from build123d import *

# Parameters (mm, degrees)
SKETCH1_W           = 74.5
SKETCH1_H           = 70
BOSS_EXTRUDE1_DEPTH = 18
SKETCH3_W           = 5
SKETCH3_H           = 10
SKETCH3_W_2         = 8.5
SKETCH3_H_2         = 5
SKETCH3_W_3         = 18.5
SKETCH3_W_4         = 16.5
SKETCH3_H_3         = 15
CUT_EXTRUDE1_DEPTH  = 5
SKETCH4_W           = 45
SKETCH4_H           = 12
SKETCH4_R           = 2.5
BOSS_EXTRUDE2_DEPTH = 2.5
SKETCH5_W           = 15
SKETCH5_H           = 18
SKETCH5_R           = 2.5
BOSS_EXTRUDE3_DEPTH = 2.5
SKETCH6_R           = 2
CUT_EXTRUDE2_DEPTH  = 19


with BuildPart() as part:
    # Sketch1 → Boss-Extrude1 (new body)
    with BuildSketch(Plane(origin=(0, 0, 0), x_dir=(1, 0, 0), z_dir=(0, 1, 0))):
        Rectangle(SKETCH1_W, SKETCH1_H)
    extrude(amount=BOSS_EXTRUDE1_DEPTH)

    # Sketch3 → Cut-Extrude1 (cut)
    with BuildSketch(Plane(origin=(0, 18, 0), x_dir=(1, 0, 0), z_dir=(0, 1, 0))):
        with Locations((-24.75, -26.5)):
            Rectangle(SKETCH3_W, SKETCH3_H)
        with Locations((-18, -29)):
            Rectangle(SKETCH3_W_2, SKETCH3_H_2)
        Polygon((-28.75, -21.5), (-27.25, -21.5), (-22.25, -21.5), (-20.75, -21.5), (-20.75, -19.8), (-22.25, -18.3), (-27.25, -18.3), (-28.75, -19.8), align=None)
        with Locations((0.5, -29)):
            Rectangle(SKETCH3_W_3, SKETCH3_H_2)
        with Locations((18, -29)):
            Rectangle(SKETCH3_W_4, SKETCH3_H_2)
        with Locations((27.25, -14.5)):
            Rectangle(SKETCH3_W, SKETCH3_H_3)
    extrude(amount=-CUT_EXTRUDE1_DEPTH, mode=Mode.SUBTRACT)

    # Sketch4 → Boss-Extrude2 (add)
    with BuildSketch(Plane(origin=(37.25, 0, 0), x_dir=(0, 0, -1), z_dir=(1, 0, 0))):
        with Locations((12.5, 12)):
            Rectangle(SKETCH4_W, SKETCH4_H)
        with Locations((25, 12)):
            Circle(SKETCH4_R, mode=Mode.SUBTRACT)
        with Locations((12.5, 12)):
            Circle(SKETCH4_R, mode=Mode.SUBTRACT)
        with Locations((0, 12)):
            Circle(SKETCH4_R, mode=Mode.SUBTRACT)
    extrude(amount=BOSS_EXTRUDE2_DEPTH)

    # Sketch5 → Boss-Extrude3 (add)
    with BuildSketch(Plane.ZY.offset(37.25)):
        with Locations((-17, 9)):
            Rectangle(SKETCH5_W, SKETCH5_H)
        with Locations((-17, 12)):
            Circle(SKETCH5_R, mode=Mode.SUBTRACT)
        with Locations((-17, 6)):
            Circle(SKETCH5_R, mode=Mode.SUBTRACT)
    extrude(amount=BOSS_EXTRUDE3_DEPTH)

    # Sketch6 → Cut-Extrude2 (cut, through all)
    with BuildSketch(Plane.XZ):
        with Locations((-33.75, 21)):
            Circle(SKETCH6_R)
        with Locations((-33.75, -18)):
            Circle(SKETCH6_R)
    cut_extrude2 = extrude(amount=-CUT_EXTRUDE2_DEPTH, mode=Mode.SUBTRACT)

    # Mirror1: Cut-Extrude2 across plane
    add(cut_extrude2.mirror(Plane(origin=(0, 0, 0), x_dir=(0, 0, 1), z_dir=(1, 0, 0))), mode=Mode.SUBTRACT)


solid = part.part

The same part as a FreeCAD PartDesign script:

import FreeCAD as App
import Part
import Sketcher

V = App.Vector
Q = App.Units.Quantity

doc = App.newDocument("Part")
params = doc.addObject("Spreadsheet::Sheet", "Params")
for row, (alias, value) in enumerate([
    ("sketch1_height", "70 mm"),
    ("sketch1_width", "74.5 mm"),
    ("pad1_length", "18 mm"),
    ("sketch2_width", "5 mm"),
    ("sketch2_width2", "35 mm"),
    ("sketch2_height", "15 mm"),
    ("sketch2_width3", "13.5 mm"),
    ("sketch2_width4", "1.5 mm"),
    ("pocket1_length", "5 mm"),
    ("sketch3_diameter", "5 mm"),
    ("sketch3_width", "12 mm"),
    ("sketch3_height", "45 mm"),
    ("pad2_length", "2.5 mm"),
    ("sketch4_diameter", "5 mm"),
    ("sketch4_width", "18 mm"),
    ("sketch4_height", "15 mm"),
    ("pad3_length", "2.5 mm"),
    ("sketch5_diameter", "4 mm"),
], start=1):
    params.set(f"A{row}", alias)
    params.set(f"B{row}", "=" + value)
    params.setAlias(f"B{row}", alias)

body = doc.addObject("PartDesign::Body", "Body")

# Sketch on XZ plane
sketch1 = doc.addObject("Sketcher::SketchObject", "Sketch")
body.addObject(sketch1)
sketch1.AttachmentSupport = (doc.XZ_Plane, [""])
sketch1.MapMode = "FlatFace"
sketch1.addGeometry(Part.LineSegment(V(-37, -35, 0), V(-37, 35, 0)), False)
sketch1.addGeometry(Part.LineSegment(V(-37, 35, 0), V(37, 35, 0)), False)
sketch1.addGeometry(Part.LineSegment(V(37, 35, 0), V(37, -35, 0)), False)
sketch1.addGeometry(Part.LineSegment(V(37, -35, 0), V(-37, -35, 0)), False)
sketch1.addConstraint(Sketcher.Constraint("Coincident", 0, 2, 1, 1))
sketch1.addConstraint(Sketcher.Constraint("Coincident", 1, 2, 2, 1))
sketch1.addConstraint(Sketcher.Constraint("Coincident", 2, 2, 3, 1))
sketch1.addConstraint(Sketcher.Constraint("Coincident", 3, 2, 0, 1))
sketch1.addConstraint(Sketcher.Constraint("Vertical", 0))
sketch1.addConstraint(Sketcher.Constraint("Horizontal", 1))
sketch1.addConstraint(Sketcher.Constraint("Vertical", 2))
sketch1.addConstraint(Sketcher.Constraint("Horizontal", 3))
sketch1.addConstraint(Sketcher.Constraint("Symmetric", 0, 2, 2, 2, -1, 1))
sketch1.addConstraint(Sketcher.Constraint("DistanceY", 0, 1, 0, 2, Q("70 mm")))
sketch1.addConstraint(Sketcher.Constraint("DistanceX", 1, 1, 1, 2, Q("74.5 mm")))
sketch1.setExpression("Constraints[9]", "Params.sketch1_height")
sketch1.setExpression("Constraints[10]", "Params.sketch1_width")
pad1 = doc.addObject("PartDesign::Pad", "Pad")
body.addObject(pad1)
pad1.Profile = sketch1
pad1.setExpression("Length", "Params.pad1_length")
pad1.Reversed = True

# Sketch on XZ plane
sketch2 = doc.addObject("Sketcher::SketchObject", "Sketch001")
body.addObject(sketch2)
sketch2.AttachmentSupport = (doc.XZ_Plane, [""])
sketch2.MapMode = "FlatFace"
sketch2.AttachmentOffset = App.Placement(V(0, 0, -18), App.Rotation())
sketch2.addGeometry(Part.LineSegment(V(-27.2, 21.5, 0), V(-27.2, 31.5, 0)), False)
sketch2.addGeometry(Part.LineSegment(V(-27.2, 31.5, 0), V(-13.8, 31.5, 0)), False)
sketch2.addGeometry(Part.LineSegment(V(-13.8, 31.5, 0), V(-13.8, 26.5, 0)), False)
sketch2.addGeometry(Part.LineSegment(V(-13.8, 26.5, 0), V(-22.2, 26.5, 0)), False)
sketch2.addGeometry(Part.LineSegment(V(-22.2, 26.5, 0), V(-22.2, 21.5, 0)), False)
sketch2.addGeometry(Part.LineSegment(V(-22.2, 21.5, 0), V(-20.8, 21.5, 0)), False)
sketch2.addGeometry(Part.LineSegment(V(-20.8, 21.5, 0), V(-20.8, 19.8, 0)), False)
sketch2.addGeometry(Part.LineSegment(V(-20.8, 19.8, 0), V(-22.2, 18.3, 0)), False)
sketch2.addGeometry(Part.LineSegment(V(-22.2, 18.3, 0), V(-27.2, 18.3, 0)), False)
sketch2.addGeometry(Part.LineSegment(V(-27.2, 18.3, 0), V(-28.8, 19.8, 0)), False)
sketch2.addGeometry(Part.LineSegment(V(-28.8, 19.8, 0), V(-28.8, 21.5, 0)), False)
sketch2.addGeometry(Part.LineSegment(V(-28.8, 21.5, 0), V(-27.2, 21.5, 0)), False)
sketch2.addGeometry(Part.LineSegment(V(-8.8, 26.5, 0), V(-8.8, 31.5, 0)), False)
sketch2.addGeometry(Part.LineSegment(V(-8.8, 31.5, 0), V(26.2, 31.5, 0)), False)
sketch2.addGeometry(Part.LineSegment(V(26.2, 31.5, 0), V(26.2, 26.5, 0)), False)
sketch2.addGeometry(Part.LineSegment(V(26.2, 26.5, 0), V(-8.8, 26.5, 0)), False)
sketch2.addGeometry(Part.LineSegment(V(24.8, 7, 0), V(24.8, 22, 0)), False)
sketch2.addGeometry(Part.LineSegment(V(24.8, 22, 0), V(29.8, 22, 0)), False)
sketch2.addGeometry(Part.LineSegment(V(29.8, 22, 0), V(29.8, 7, 0)), False)
sketch2.addGeometry(Part.LineSegment(V(29.8, 7, 0), V(24.8, 7, 0)), False)
sketch2.addConstraint(Sketcher.Constraint("Coincident", 0, 2, 1, 1))
sketch2.addConstraint(Sketcher.Constraint("Coincident", 1, 2, 2, 1))
sketch2.addConstraint(Sketcher.Constraint("Coincident", 2, 2, 3, 1))
sketch2.addConstraint(Sketcher.Constraint("Coincident", 3, 2, 4, 1))
sketch2.addConstraint(Sketcher.Constraint("Coincident", 4, 2, 5, 1))
sketch2.addConstraint(Sketcher.Constraint("Coincident", 5, 2, 6, 1))
sketch2.addConstraint(Sketcher.Constraint("Coincident", 6, 2, 7, 1))
sketch2.addConstraint(Sketcher.Constraint("Coincident", 7, 2, 8, 1))
sketch2.addConstraint(Sketcher.Constraint("Coincident", 8, 2, 9, 1))
sketch2.addConstraint(Sketcher.Constraint("Coincident", 9, 2, 10, 1))
sketch2.addConstraint(Sketcher.Constraint("Coincident", 10, 2, 11, 1))
sketch2.addConstraint(Sketcher.Constraint("Coincident", 11, 2, 0, 1))
sketch2.addConstraint(Sketcher.Constraint("Coincident", 12, 2, 13, 1))
sketch2.addConstraint(Sketcher.Constraint("Coincident", 13, 2, 14, 1))
sketch2.addConstraint(Sketcher.Constraint("Coincident", 14, 2, 15, 1))
sketch2.addConstraint(Sketcher.Constraint("Coincident", 15, 2, 12, 1))
sketch2.addConstraint(Sketcher.Constraint("Coincident", 16, 2, 17, 1))
sketch2.addConstraint(Sketcher.Constraint("Coincident", 17, 2, 18, 1))
sketch2.addConstraint(Sketcher.Constraint("Coincident", 18, 2, 19, 1))
sketch2.addConstraint(Sketcher.Constraint("Coincident", 19, 2, 16, 1))
sketch2.addConstraint(Sketcher.Constraint("Vertical", 0))
sketch2.addConstraint(Sketcher.Constraint("Horizontal", 1))
sketch2.addConstraint(Sketcher.Constraint("Vertical", 2))
sketch2.addConstraint(Sketcher.Constraint("Horizontal", 3))
sketch2.addConstraint(Sketcher.Constraint("Vertical", 4))
sketch2.addConstraint(Sketcher.Constraint("Horizontal", 5))
sketch2.addConstraint(Sketcher.Constraint("Vertical", 6))
sketch2.addConstraint(Sketcher.Constraint("Horizontal", 8))
sketch2.addConstraint(Sketcher.Constraint("Vertical", 10))
sketch2.addConstraint(Sketcher.Constraint("Horizontal", 11))
sketch2.addConstraint(Sketcher.Constraint("Vertical", 12))
sketch2.addConstraint(Sketcher.Constraint("Horizontal", 13))
sketch2.addConstraint(Sketcher.Constraint("Vertical", 14))
sketch2.addConstraint(Sketcher.Constraint("Horizontal", 15))
sketch2.addConstraint(Sketcher.Constraint("Vertical", 16))
sketch2.addConstraint(Sketcher.Constraint("Horizontal", 17))
sketch2.addConstraint(Sketcher.Constraint("Vertical", 18))
sketch2.addConstraint(Sketcher.Constraint("Horizontal", 19))
sketch2.addConstraint(Sketcher.Constraint("Perpendicular", 7, 9))
sketch2.addConstraint(Sketcher.Constraint("Horizontal", 6, 2, 9, 2))
sketch2.addConstraint(Sketcher.Constraint("Horizontal", 5, 2, 10, 2))
sketch2.addConstraint(Sketcher.Constraint("Horizontal", 1, 2, 12, 2))
sketch2.addConstraint(Sketcher.Constraint("Horizontal", 3, 2, 14, 2))
sketch2.addConstraint(Sketcher.Constraint("Vertical", 4, 2, 7, 2))
sketch2.addConstraint(Sketcher.Constraint("Vertical", 0, 2, 8, 2))
sketch2.addConstraint(Sketcher.Constraint("Equal", 5, 11))
sketch2.addConstraint(Sketcher.Constraint("Equal", 8, 17))
sketch2.addConstraint(Sketcher.Constraint("Equal", 19, 2))
sketch2.addConstraint(Sketcher.Constraint("Equal", 2, 4))
sketch2.addConstraint(Sketcher.Constraint("DistanceX", 8, 2, 8, 1, Q("5 mm")))
sketch2.addConstraint(Sketcher.Constraint("DistanceX", 13, 1, 13, 2, Q("35 mm")))
sketch2.addConstraint(Sketcher.Constraint("DistanceY", 16, 1, 16, 2, Q("15 mm")))
sketch2.addConstraint(Sketcher.Constraint("DistanceX", 1, 1, 1, 2, Q("13.5 mm")))
sketch2.addConstraint(Sketcher.Constraint("DistanceX", 5, 1, 5, 2, Q("1.5 mm")))
sketch2.addConstraint(Sketcher.Constraint("DistanceY", 6, 2, 6, 1, Q("1.7 mm")))
sketch2.addConstraint(Sketcher.Constraint("DistanceY", -1, 1, 16, 2, Q("22 mm")))
sketch2.addConstraint(Sketcher.Constraint("DistanceX", 1, 2, 12, 2, Q("5 mm")))
sketch2.addConstraint(Sketcher.Constraint("DistanceY", -1, 1, 0, 2, Q("31.5 mm")))
sketch2.addConstraint(Sketcher.Constraint("DistanceX", 16, 2, 14, 2, Q("1.5 mm")))
sketch2.addConstraint(Sketcher.Constraint("DistanceX", 0, 2, -1, 1, Q("27.25 mm")))
sketch2.setExpression("Constraints[49]", "Params.sketch2_width")
sketch2.setExpression("Constraints[50]", "Params.sketch2_width2")
sketch2.setExpression("Constraints[51]", "Params.sketch2_height")
sketch2.setExpression("Constraints[52]", "Params.sketch2_width3")
sketch2.setExpression("Constraints[53]", "Params.sketch2_width4")
pocket1 = doc.addObject("PartDesign::Pocket", "Pocket")
body.addObject(pocket1)
pocket1.Profile = sketch2
pocket1.setExpression("Length", "Params.pocket1_length")
pocket1.Reversed = True

# Sketch on YZ plane
sketch3 = doc.addObject("Sketcher::SketchObject", "Sketch002")
body.addObject(sketch3)
sketch3.AttachmentSupport = (doc.YZ_Plane, [""])
sketch3.MapMode = "FlatFace"
sketch3.AttachmentOffset = App.Placement(V(0, 0, 37.25), App.Rotation())
sketch3.addGeometry(Part.LineSegment(V(18, 10, 0), V(6, 10, 0)), False)
sketch3.addGeometry(Part.LineSegment(V(6, 10, 0), V(6, -35, 0)), False)
sketch3.addGeometry(Part.LineSegment(V(6, -35, 0), V(18, -35, 0)), False)
sketch3.addGeometry(Part.LineSegment(V(18, -35, 0), V(18, 10, 0)), False)
sketch3.addGeometry(Part.Circle(V(12, 0, 0), V(0, 0, 1), 2.5), False)
sketch3.addGeometry(Part.Circle(V(12, -12.5, 0), V(0, 0, 1), 2.5), False)
sketch3.addGeometry(Part.Circle(V(12, -25, 0), V(0, 0, 1), 2.5), False)
sketch3.addConstraint(Sketcher.Constraint("Coincident", 0, 2, 1, 1))
sketch3.addConstraint(Sketcher.Constraint("Coincident", 1, 2, 2, 1))
sketch3.addConstraint(Sketcher.Constraint("Coincident", 2, 2, 3, 1))
sketch3.addConstraint(Sketcher.Constraint("Coincident", 3, 2, 0, 1))
sketch3.addConstraint(Sketcher.Constraint("Horizontal", 0))
sketch3.addConstraint(Sketcher.Constraint("Vertical", 1))
sketch3.addConstraint(Sketcher.Constraint("Horizontal", 2))
sketch3.addConstraint(Sketcher.Constraint("Vertical", 3))
sketch3.addConstraint(Sketcher.Constraint("Equal", 4, 5))
sketch3.addConstraint(Sketcher.Constraint("Equal", 5, 6))
sketch3.addConstraint(Sketcher.Constraint("PointOnObject", 4, 3, -1))
sketch3.addConstraint(Sketcher.Constraint("Vertical", 4, 3, 5, 3))
sketch3.addConstraint(Sketcher.Constraint("Vertical", 5, 3, 6, 3))
sketch3.addConstraint(Sketcher.Constraint("Diameter", 4, Q("5 mm")))
sketch3.addConstraint(Sketcher.Constraint("DistanceX", 0, 2, 0, 1, Q("12 mm")))
sketch3.addConstraint(Sketcher.Constraint("DistanceY", 1, 2, 1, 1, Q("45 mm")))
sketch3.addConstraint(Sketcher.Constraint("DistanceX", -1, 1, 4, 3, Q("12 mm")))
sketch3.addConstraint(Sketcher.Constraint("DistanceY", 6, 3, -1, 1, Q("25 mm")))
sketch3.addConstraint(Sketcher.Constraint("DistanceX", -1, 1, 0, 2, Q("6 mm")))
sketch3.addConstraint(Sketcher.Constraint("DistanceY", -1, 1, 0, 2, Q("10 mm")))
sketch3.addConstraint(Sketcher.Constraint("DistanceY", 5, 3, -1, 1, Q("12.5 mm")))
sketch3.setExpression("Constraints[13]", "Params.sketch3_diameter")
sketch3.setExpression("Constraints[14]", "Params.sketch3_width")
sketch3.setExpression("Constraints[15]", "Params.sketch3_height")
pad2 = doc.addObject("PartDesign::Pad", "Pad001")
body.addObject(pad2)
pad2.Profile = sketch3
pad2.setExpression("Length", "Params.pad2_length")

# Sketch on YZ plane
sketch4 = doc.addObject("Sketcher::SketchObject", "Sketch003")
body.addObject(sketch4)
sketch4.AttachmentSupport = (doc.YZ_Plane, [""])
sketch4.MapMode = "FlatFace"
sketch4.AttachmentOffset = App.Placement(V(0, 0, -37.25), App.Rotation())
sketch4.addGeometry(Part.LineSegment(V(18, -24.5, 0), V(0, -24.5, 0)), False)
sketch4.addGeometry(Part.LineSegment(V(0, -24.5, 0), V(0, -9.5, 0)), False)
sketch4.addGeometry(Part.LineSegment(V(0, -9.5, 0), V(18, -9.5, 0)), False)
sketch4.addGeometry(Part.LineSegment(V(18, -9.5, 0), V(18, -24.5, 0)), False)
sketch4.addGeometry(Part.Circle(V(6, -17, 0), V(0, 0, 1), 2.5), False)
sketch4.addGeometry(Part.Circle(V(12, -17, 0), V(0, 0, 1), 2.5), False)
sketch4.addConstraint(Sketcher.Constraint("Coincident", 0, 2, 1, 1))
sketch4.addConstraint(Sketcher.Constraint("Coincident", 1, 2, 2, 1))
sketch4.addConstraint(Sketcher.Constraint("Coincident", 2, 2, 3, 1))
sketch4.addConstraint(Sketcher.Constraint("Coincident", 3, 2, 0, 1))
sketch4.addConstraint(Sketcher.Constraint("Horizontal", 0))
sketch4.addConstraint(Sketcher.Constraint("Vertical", 1))
sketch4.addConstraint(Sketcher.Constraint("Horizontal", 2))
sketch4.addConstraint(Sketcher.Constraint("Vertical", 3))
sketch4.addConstraint(Sketcher.Constraint("Equal", 4, 5))
sketch4.addConstraint(Sketcher.Constraint("PointOnObject", 0, 2, -2))
sketch4.addConstraint(Sketcher.Constraint("Horizontal", 4, 3, 5, 3))
sketch4.addConstraint(Sketcher.Constraint("Diameter", 4, Q("5 mm")))
sketch4.addConstraint(Sketcher.Constraint("DistanceX", 0, 2, 0, 1, Q("18 mm")))
sketch4.addConstraint(Sketcher.Constraint("DistanceY", 1, 1, 1, 2, Q("15 mm")))
sketch4.addConstraint(Sketcher.Constraint("DistanceX", -1, 1, 4, 3, Q("6 mm")))
sketch4.addConstraint(Sketcher.Constraint("DistanceY", 4, 3, -1, 1, Q("17 mm")))
sketch4.addConstraint(Sketcher.Constraint("DistanceX", -1, 1, 5, 3, Q("12 mm")))
sketch4.addConstraint(Sketcher.Constraint("DistanceY", 0, 2, -1, 1, Q("24.5 mm")))
sketch4.setExpression("Constraints[11]", "Params.sketch4_diameter")
sketch4.setExpression("Constraints[12]", "Params.sketch4_width")
sketch4.setExpression("Constraints[13]", "Params.sketch4_height")
pad3 = doc.addObject("PartDesign::Pad", "Pad002")
body.addObject(pad3)
pad3.Profile = sketch4
pad3.setExpression("Length", "Params.pad3_length")
pad3.Reversed = True

# Sketch on XZ plane
sketch5 = doc.addObject("Sketcher::SketchObject", "Sketch004")
body.addObject(sketch5)
sketch5.AttachmentSupport = (doc.XZ_Plane, [""])
sketch5.MapMode = "FlatFace"
sketch5.addGeometry(Part.Circle(V(-33.8, 21, 0), V(0, 0, 1), 2), False)
sketch5.addGeometry(Part.Circle(V(-33.8, -18, 0), V(0, 0, 1), 2), False)
sketch5.addConstraint(Sketcher.Constraint("Equal", 0, 1))
sketch5.addConstraint(Sketcher.Constraint("Vertical", 0, 3, 1, 3))
sketch5.addConstraint(Sketcher.Constraint("Diameter", 0, Q("4 mm")))
sketch5.addConstraint(Sketcher.Constraint("DistanceY", -1, 1, 0, 3, Q("21 mm")))
sketch5.addConstraint(Sketcher.Constraint("DistanceY", 1, 3, -1, 1, Q("18 mm")))
sketch5.addConstraint(Sketcher.Constraint("DistanceX", 0, 3, -1, 1, Q("33.75 mm")))
sketch5.setExpression("Constraints[2]", "Params.sketch5_diameter")
pocket2 = doc.addObject("PartDesign::Pocket", "Pocket001")
body.addObject(pocket2)
pocket2.Profile = sketch5
pocket2.Type = "ThroughAll"
doc.recompute()

mirrored = doc.addObject("PartDesign::Mirrored", "Mirrored")
body.addObject(mirrored)
mirrored.Originals = [pocket2]
mirrored.MirrorPlane = (doc.YZ_Plane, [""])
body.Tip = mirrored

doc.recompute()
